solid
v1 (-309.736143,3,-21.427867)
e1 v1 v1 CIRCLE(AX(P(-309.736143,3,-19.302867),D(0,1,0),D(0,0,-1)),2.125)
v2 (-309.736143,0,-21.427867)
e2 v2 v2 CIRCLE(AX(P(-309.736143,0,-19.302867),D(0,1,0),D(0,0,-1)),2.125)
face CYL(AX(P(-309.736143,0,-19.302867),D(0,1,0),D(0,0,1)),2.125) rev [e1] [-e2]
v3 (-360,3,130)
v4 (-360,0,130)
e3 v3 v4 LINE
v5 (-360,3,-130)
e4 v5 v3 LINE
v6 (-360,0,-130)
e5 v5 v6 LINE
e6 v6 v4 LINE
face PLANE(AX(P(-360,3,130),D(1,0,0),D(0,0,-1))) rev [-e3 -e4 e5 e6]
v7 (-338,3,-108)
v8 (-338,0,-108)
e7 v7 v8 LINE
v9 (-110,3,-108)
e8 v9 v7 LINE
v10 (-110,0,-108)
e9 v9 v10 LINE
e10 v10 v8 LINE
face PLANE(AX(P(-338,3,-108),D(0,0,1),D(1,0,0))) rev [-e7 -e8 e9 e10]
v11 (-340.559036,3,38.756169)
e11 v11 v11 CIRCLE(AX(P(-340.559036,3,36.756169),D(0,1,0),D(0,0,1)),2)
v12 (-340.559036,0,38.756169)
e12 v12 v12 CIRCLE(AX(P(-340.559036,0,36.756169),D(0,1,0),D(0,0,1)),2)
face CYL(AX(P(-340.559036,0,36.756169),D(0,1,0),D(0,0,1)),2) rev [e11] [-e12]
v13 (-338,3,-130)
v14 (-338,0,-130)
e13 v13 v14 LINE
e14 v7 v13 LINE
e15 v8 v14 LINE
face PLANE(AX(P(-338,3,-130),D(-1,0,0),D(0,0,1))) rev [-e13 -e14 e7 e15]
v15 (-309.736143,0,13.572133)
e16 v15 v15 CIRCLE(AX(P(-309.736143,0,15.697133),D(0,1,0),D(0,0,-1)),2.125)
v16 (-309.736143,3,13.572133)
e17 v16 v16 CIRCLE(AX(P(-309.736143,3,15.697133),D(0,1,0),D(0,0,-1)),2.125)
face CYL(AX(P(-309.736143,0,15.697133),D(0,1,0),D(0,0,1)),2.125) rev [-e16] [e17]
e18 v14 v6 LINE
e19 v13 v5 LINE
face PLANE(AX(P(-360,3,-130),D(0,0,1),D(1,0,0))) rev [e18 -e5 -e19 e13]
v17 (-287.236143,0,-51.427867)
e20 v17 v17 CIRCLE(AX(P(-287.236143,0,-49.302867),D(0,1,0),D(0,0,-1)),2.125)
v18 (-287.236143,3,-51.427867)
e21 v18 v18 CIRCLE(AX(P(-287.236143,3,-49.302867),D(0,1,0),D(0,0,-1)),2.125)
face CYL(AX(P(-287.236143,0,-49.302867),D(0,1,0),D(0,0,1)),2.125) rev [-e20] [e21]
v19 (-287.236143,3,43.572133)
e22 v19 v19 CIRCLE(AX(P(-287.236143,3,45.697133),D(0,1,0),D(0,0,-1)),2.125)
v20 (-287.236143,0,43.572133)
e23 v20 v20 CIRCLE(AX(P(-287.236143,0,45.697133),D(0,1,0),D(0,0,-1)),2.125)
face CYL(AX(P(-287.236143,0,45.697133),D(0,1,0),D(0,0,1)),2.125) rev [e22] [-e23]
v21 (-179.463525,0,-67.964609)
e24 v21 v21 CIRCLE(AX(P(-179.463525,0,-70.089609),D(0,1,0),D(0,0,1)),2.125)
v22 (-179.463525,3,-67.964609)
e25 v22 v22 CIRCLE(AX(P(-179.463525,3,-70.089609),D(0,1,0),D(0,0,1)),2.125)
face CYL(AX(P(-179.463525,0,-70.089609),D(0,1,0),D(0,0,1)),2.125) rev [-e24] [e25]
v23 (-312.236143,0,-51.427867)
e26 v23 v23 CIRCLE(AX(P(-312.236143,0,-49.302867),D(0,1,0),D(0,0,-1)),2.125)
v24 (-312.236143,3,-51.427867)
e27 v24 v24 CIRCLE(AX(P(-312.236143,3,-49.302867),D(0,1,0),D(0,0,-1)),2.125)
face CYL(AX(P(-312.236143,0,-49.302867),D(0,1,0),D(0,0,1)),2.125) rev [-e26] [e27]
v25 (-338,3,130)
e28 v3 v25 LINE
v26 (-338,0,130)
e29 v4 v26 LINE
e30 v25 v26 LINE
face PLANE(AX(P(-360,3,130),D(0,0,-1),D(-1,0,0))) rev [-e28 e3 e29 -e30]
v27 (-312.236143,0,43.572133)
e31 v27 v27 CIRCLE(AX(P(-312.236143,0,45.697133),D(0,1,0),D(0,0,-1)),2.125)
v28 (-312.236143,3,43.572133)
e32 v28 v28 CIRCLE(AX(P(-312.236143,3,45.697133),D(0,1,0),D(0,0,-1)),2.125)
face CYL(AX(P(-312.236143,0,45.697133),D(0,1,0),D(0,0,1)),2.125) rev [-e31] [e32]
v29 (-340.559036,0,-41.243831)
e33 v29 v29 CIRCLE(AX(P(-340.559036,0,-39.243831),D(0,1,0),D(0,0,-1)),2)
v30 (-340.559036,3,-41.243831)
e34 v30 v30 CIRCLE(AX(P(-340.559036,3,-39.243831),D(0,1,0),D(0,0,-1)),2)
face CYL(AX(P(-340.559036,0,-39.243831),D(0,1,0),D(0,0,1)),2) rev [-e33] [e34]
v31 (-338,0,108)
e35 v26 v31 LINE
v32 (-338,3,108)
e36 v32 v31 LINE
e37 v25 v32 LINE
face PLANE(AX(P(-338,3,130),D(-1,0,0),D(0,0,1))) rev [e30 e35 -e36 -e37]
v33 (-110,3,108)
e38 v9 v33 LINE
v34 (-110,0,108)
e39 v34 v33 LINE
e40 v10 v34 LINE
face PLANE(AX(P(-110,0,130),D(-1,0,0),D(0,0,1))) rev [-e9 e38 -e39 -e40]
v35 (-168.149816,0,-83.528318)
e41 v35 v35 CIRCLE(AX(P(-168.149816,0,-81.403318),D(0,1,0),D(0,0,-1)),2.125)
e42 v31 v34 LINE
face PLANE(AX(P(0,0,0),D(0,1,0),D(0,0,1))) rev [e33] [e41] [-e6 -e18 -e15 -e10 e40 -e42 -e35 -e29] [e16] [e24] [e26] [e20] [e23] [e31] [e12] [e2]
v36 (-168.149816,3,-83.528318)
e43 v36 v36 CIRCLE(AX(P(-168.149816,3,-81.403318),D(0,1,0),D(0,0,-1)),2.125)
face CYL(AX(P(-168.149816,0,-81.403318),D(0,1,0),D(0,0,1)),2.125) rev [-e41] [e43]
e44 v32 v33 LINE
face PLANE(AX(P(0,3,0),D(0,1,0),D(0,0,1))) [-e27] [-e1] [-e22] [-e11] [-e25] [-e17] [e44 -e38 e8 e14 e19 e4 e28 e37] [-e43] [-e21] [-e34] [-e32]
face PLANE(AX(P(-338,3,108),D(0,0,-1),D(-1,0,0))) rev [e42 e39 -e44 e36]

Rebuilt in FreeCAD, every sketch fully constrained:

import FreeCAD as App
import Part
import Sketcher
from FreeCAD import Vector

doc = App.newDocument("Part")
body = doc.addObject("PartDesign::Body", "Body")

sketch1 = body.newObject("Sketcher::SketchObject", "Sketch")
sketch1.AttachmentSupport = (doc.getObject("XZ_Plane"), [""])
sketch1.MapMode = "FlatFace"
sketch1.addGeometry([
    Part.LineSegment(Vector(-360, -130, 0), Vector(-360, 130, 0)),
    Part.LineSegment(Vector(-360, 130, 0), Vector(-338, 130, 0)),
    Part.LineSegment(Vector(-338, 130, 0), Vector(-338, 108, 0)),
    Part.LineSegment(Vector(-338, 108, 0), Vector(338, 108, 0)),
    Part.LineSegment(Vector(338, 108, 0), Vector(338, 130, 0)),
    Part.LineSegment(Vector(338, 130, 0), Vector(360, 130, 0)),
    Part.LineSegment(Vector(360, 130, 0), Vector(360, -130, 0)),
    Part.LineSegment(Vector(360, -130, 0), Vector(338, -130, 0)),
    Part.LineSegment(Vector(338, -130, 0), Vector(338, -108, 0)),
    Part.LineSegment(Vector(338, -108, 0), Vector(-338, -108, 0)),
    Part.LineSegment(Vector(-338, -108, 0), Vector(-338, -130, 0)),
    Part.LineSegment(Vector(-338, -130, 0), Vector(-360, -130, 0)),
], False)
sketch1.addConstraint([
    Sketcher.Constraint("Coincident", 0, 2, 1, 1),
    Sketcher.Constraint("Coincident", 1, 2, 2, 1),
    Sketcher.Constraint("Coincident", 2, 2, 3, 1),
    Sketcher.Constraint("Coincident", 3, 2, 4, 1),
    Sketcher.Constraint("Coincident", 4, 2, 5, 1),
    Sketcher.Constraint("Coincident", 5, 2, 6, 1),
    Sketcher.Constraint("Coincident", 6, 2, 7, 1),
    Sketcher.Constraint("Coincident", 7, 2, 8, 1),
    Sketcher.Constraint("Coincident", 8, 2, 9, 1),
    Sketcher.Constraint("Coincident", 9, 2, 10, 1),
    Sketcher.Constraint("Coincident", 10, 2, 11, 1),
    Sketcher.Constraint("Coincident", 11, 2, 0, 1),
    Sketcher.Constraint("Vertical", 0),
    Sketcher.Constraint("Horizontal", 1),
    Sketcher.Constraint("Vertical", 2),
    Sketcher.Constraint("Horizontal", 3),
    Sketcher.Constraint("Vertical", 4),
    Sketcher.Constraint("Horizontal", 5),
    Sketcher.Constraint("Vertical", 6),
    Sketcher.Constraint("Horizontal", 7),
    Sketcher.Constraint("Vertical", 8),
    Sketcher.Constraint("Horizontal", 9),
    Sketcher.Constraint("Vertical", 10),
    Sketcher.Constraint("Horizontal", 11),
    Sketcher.Constraint("Symmetric", 0, 2, 6, 2, -1, 1),
    Sketcher.Constraint("Symmetric", 2, 2, 8, 2, -1, 1),
    Sketcher.Constraint("Symmetric", 4, 2, 10, 2, -1, 1),
    Sketcher.Constraint("Symmetric", 1, 2, 4, 2, -2),
    Sketcher.Constraint("Equal", 11, 2),
    Sketcher.Constraint("DistanceX", 1, 1, 1, 2, 22.0),
    Sketcher.Constraint("DistanceX", 3, 1, 3, 2, 676.0),
    Sketcher.Constraint("DistanceY", 0, 1, 0, 2, 260.0),
])
pad1 = body.newObject("PartDesign::Pad", "Pad")
pad1.Profile = sketch1
pad1.Length = 3
pad1.Reversed = True

sketch2 = body.newObject("Sketcher::SketchObject", "Sketch001")
sketch2.AttachmentSupport = (doc.getObject("XZ_Plane"), [""])
sketch2.MapMode = "FlatFace"
sketch2.AttachmentOffset = App.Placement(Vector(0, 0, -3), App.Rotation())
sketch2.addGeometry([
    Part.Circle(Vector(307.8, -49.3, 0), Vector(0, 0, 1), 2.1),
    Part.Circle(Vector(282.8, -49.3, 0), Vector(0, 0, 1), 2.1),
    Part.Circle(Vector(305.3, -19.3, 0), Vector(0, 0, 1), 2.1),
    Part.Circle(Vector(305.3, 15.7, 0), Vector(0, 0, 1), 2.1),
    Part.Circle(Vector(307.8, 45.7, 0), Vector(0, 0, 1), 2.1),
    Part.Circle(Vector(282.8, 45.7, 0), Vector(0, 0, 1), 2.1),
    Part.Circle(Vector(-287.2, 45.7, 0), Vector(0, 0, 1), 2.1),
    Part.Circle(Vector(-312.2, 45.7, 0), Vector(0, 0, 1), 2.1),
    Part.Circle(Vector(-309.7, 15.7, 0), Vector(0, 0, 1), 2.1),
    Part.Circle(Vector(-309.7, -19.3, 0), Vector(0, 0, 1), 2.1),
    Part.Circle(Vector(-287.2, -49.3, 0), Vector(0, 0, 1), 2.1),
    Part.Circle(Vector(-312.2, -49.3, 0), Vector(0, 0, 1), 2.1),
], False)
sketch2.addConstraint([
    Sketcher.Constraint("Equal", 0, 1),
    Sketcher.Constraint("Equal", 1, 2),
    Sketcher.Constraint("Equal", 2, 3),
    Sketcher.Constraint("Equal", 3, 4),
    Sketcher.Constraint("Equal", 4, 5),
    Sketcher.Constraint("Equal", 5, 6),
    Sketcher.Constraint("Equal", 6, 7),
    Sketcher.Constraint("Equal", 7, 8),
    Sketcher.Constraint("Equal", 8, 9),
    Sketcher.Constraint("Equal", 9, 10),
    Sketcher.Constraint("Equal", 10, 11),
    Sketcher.Constraint("Horizontal", 0, 3, 1, 3),
    Sketcher.Constraint("Horizontal", 4, 3, 5, 3),
    Sketcher.Constraint("Horizontal", 5, 3, 6, 3),
    Sketcher.Constraint("Horizontal", 6, 3, 7, 3),
    Sketcher.Constraint("Horizontal", 3, 3, 8, 3),
    Sketcher.Constraint("Horizontal", 2, 3, 9, 3),
    Sketcher.Constraint("Horizontal", 1, 3, 10, 3),
    Sketcher.Constraint("Horizontal", 10, 3, 11, 3),
    Sketcher.Constraint("Vertical", 2, 3, 3, 3),
    Sketcher.Constraint("Vertical", 0, 3, 4, 3),
    Sketcher.Constraint("Vertical", 1, 3, 5, 3),
    Sketcher.Constraint("Vertical", 8, 3, 9, 3),
    Sketcher.Constraint("Vertical", 6, 3, 10, 3),
    Sketcher.Constraint("Vertical", 7, 3, 11, 3),
    Sketcher.Constraint("Diameter", 0, 4.25),
    Sketcher.Constraint("DistanceX", 1, 3, 0, 3, 25.0),
    Sketcher.Constraint("DistanceY", 0, 3, 2, 3, 30.0),
    Sketcher.Constraint("DistanceY", 2, 3, 3, 3, 35.0),
    Sketcher.Constraint("DistanceY", 3, 3, 4, 3, 30.0),
    Sketcher.Constraint("DistanceX", 6, 3, 5, 3, 570.0),
    Sketcher.Constraint("DistanceX", 7, 3, 6, 3, 25.0),
    Sketcher.Constraint("DistanceX", 8, 3, 3, 3, 615.0),
    Sketcher.Constraint("DistanceX", 2, 3, 0, 3, 2.5),
    Sketcher.Constraint("DistanceX", -1, 1, 0, 3, 307.763857),
    Sketcher.Constraint("DistanceY", 0, 3, -1, 1, 49.302867),
])
pocket1 = body.newObject("PartDesign::Pocket", "Pocket")
pocket1.Profile = sketch2
pocket1.Length = 3
pocket1.Reversed = True

sketch3 = body.newObject("Sketcher::SketchObject", "Sketch002")
sketch3.AttachmentSupport = (doc.getObject("XZ_Plane"), [""])
sketch3.MapMode = "FlatFace"
sketch3.AttachmentOffset = App.Placement(Vector(0, 0, -3), App.Rotation())
sketch3.addGeometry([
    Part.Circle(Vector(339.4, -39.2, 0), Vector(0, 0, 1), 2),
    Part.Circle(Vector(339.4, 36.8, 0), Vector(0, 0, 1), 2),
    Part.Circle(Vector(-340.6, 36.8, 0), Vector(0, 0, 1), 2),
    Part.Circle(Vector(-340.6, -39.2, 0), Vector(0, 0, 1), 2),
], False)
sketch3.addConstraint([
    Sketcher.Constraint("Equal", 0, 1),
    Sketcher.Constraint("Equal", 1, 2),
    Sketcher.Constraint("Equal", 2, 3),
    Sketcher.Constraint("Horizontal", 1, 3, 2, 3),
    Sketcher.Constraint("Horizontal", 0, 3, 3, 3),
    Sketcher.Constraint("Vertical", 0, 3, 1, 3),
    Sketcher.Constraint("Vertical", 2, 3, 3, 3),
    Sketcher.Constraint("Diameter", 0, 4.0),
    Sketcher.Constraint("DistanceY", 0, 3, 1, 3, 76.0),
    Sketcher.Constraint("DistanceX", 2, 3, 1, 3, 680.0),
    Sketcher.Constraint("DistanceY", 0, 3, -1, 1, 39.243831),
    Sketcher.Constraint("DistanceX", -1, 1, 0, 3, 339.440964),
])
pocket2 = body.newObject("PartDesign::Pocket", "Pocket001")
pocket2.Profile = sketch3
pocket2.Length = 3
pocket2.Reversed = True

sketch4 = body.newObject("Sketcher::SketchObject", "Sketch003")
sketch4.AttachmentSupport = (doc.getObject("XZ_Plane"), [""])
sketch4.MapMode = "FlatFace"
sketch4.AttachmentOffset = App.Placement(Vector(0, 0, -3), App.Rotation())
sketch4.addGeometry([
    Part.Circle(Vector(66.6, 176, 0), Vector(0, 0, 1), 2.1),
    Part.Circle(Vector(-179.5, -70.1, 0), Vector(0, 0, 1), 2.1),
    Part.Circle(Vector(-15.4, 94, 0), Vector(0, 0, 1), 2.1),
    Part.Circle(Vector(-97.4, 11.9, 0), Vector(0, 0, 1), 2.1),
    Part.Circle(Vector(77.9, 164.7, 0), Vector(0, 0, 1), 2.1),
    Part.Circle(Vector(-4.1, 82.6, 0), Vector(0, 0, 1), 2.1),
    Part.Circle(Vector(-86.1, 0.6, 0), Vector(0, 0, 1), 2.1),
    Part.Circle(Vector(-168.1, -81.4, 0), Vector(0, 0, 1), 2.1),
    Part.Circle(Vector(-49.4, -200.2, 0), Vector(0, 0, 1), 2.1),
    Part.Circle(Vector(32.7, -118.2, 0), Vector(0, 0, 1), 2.1),
    Part.Circle(Vector(114.7, -36.1, 0), Vector(0, 0, 1), 2.1),
    Part.Circle(Vector(196.7, 45.9, 0), Vector(0, 0, 1), 2.1),
    Part.Circle(Vector(44, -129.5, 0), Vector(0, 0, 1), 2.1),
    Part.Circle(Vector(126, -47.5, 0), Vector(0, 0, 1), 2.1),
    Part.Circle(Vector(-38, -211.5, 0), Vector(0, 0, 1), 2.1),
    Part.Circle(Vector(208, 34.6, 0), Vector(0, 0, 1), 2.1),
], False)
sketch4.addConstraint([
    Sketcher.Constraint("Equal", 0, 1),
    Sketcher.Constraint("Equal", 1, 2),
    Sketcher.Constraint("Equal", 2, 3),
    Sketcher.Constraint("Equal", 3, 4),
    Sketcher.Constraint("Equal", 4, 5),
    Sketcher.Constraint("Equal", 5, 6),
    Sketcher.Constraint("Equal", 6, 7),
    Sketcher.Constraint("Equal", 7, 8),
    Sketcher.Constraint("Equal", 8, 9),
    Sketcher.Constraint("Equal", 9, 10),
    Sketcher.Constraint("Equal", 10, 11),
    Sketcher.Constraint("Equal", 11, 12),
    Sketcher.Constraint("Equal", 12, 13),
    Sketcher.Constraint("Equal", 13, 14),
    Sketcher.Constraint("Equal", 14, 15),
    Sketcher.Constraint("Diameter", 0, 4.25),
    Sketcher.Constraint("DistanceY", -1, 1, 0, 3, 175.98355),
    Sketcher.Constraint("DistanceY", 1, 3, -1, 1, 70.089609),
    Sketcher.Constraint("DistanceX", 2, 3, -1, 1, 15.414751),
    Sketcher.Constraint("DistanceY", -1, 1, 4, 3, 164.669842),
    Sketcher.Constraint("DistanceX", 6, 3, -1, 1, 86.125429),
    Sketcher.Constraint("DistanceY", -1, 1, 6, 3, 0.621069),
    Sketcher.Constraint("DistanceX", -1, 1, 9, 3, 32.66851),
    Sketcher.Constraint("DistanceY", 9, 3, -1, 1, 118.172871),
    Sketcher.Constraint("DistanceX", -1, 1, 12, 3, 43.982218),
    Sketcher.Constraint("DistanceY", 12, 3, -1, 1, 129.486579),
    Sketcher.Constraint("DistanceX", 14, 3, -1, 1, 38.042168),
    Sketcher.Constraint("DistanceX", -1, 1, 15, 3, 208.030992),
    Sketcher.Constraint("DistanceX", 1, 3, 0, 3, 246.07316),
    Sketcher.Constraint("DistanceX", 0, 3, 4, 3, 11.313708),
    Sketcher.Constraint("DistanceY", 2, 3, 4, 3, 70.710678),
    Sketcher.Constraint("DistanceX", 3, 3, 4, 3, 175.362482),
    Sketcher.Constraint("DistanceX", 2, 3, 5, 3, 11.313708),
    Sketcher.Constraint("DistanceY", 5, 3, 2, 3, 11.313708),
    Sketcher.Constraint("DistanceX", 5, 3, 0, 3, 70.710678),
    Sketcher.Constraint("DistanceY", 3, 3, 5, 3, 70.710678),
    Sketcher.Constraint("DistanceX", 1, 3, 7, 3, 11.313708),
    Sketcher.Constraint("DistanceY", 7, 3, 1, 3, 11.313708),
    Sketcher.Constraint("DistanceX", 7, 3, 8, 3, 118.793939),
    Sketcher.Constraint("DistanceY", 8, 3, 7, 3, 118.793939),
    Sketcher.Constraint("DistanceX", 5, 3, 10, 3, 118.793939),
    Sketcher.Constraint("DistanceY", 10, 3, 5, 3, 118.793939),
    Sketcher.Constraint("DistanceX", 4, 3, 11, 3, 118.793939),
    Sketcher.Constraint("DistanceY", 11, 3, 4, 3, 118.793939),
    Sketcher.Constraint("DistanceX", 10, 3, 13, 3, 11.313708),
    Sketcher.Constraint("DistanceY", 13, 3, 10, 3, 11.313708),
    Sketcher.Constraint("DistanceY", 14, 3, 8, 3, 11.313708),
    Sketcher.Constraint("DistanceY", 15, 3, 11, 3, 11.313708),
])
pocket3 = body.newObject("PartDesign::Pocket", "Pocket002")
pocket3.Profile = sketch4
pocket3.Length = 3
pocket3.Reversed = True

sketch5 = body.newObject("Sketcher::SketchObject", "Sketch004")
sketch5.AttachmentSupport = (doc.getObject("XZ_Plane"), [""])
sketch5.MapMode = "FlatFace"
sketch5.AttachmentOffset = App.Placement(Vector(0, 0, -3), App.Rotation())
sketch5.addGeometry([
    Part.LineSegment(Vector(-110, -130, 0), Vector(-110, 130, 0)),
    Part.LineSegment(Vector(-110, 130, 0), Vector(360, 130, 0)),
    Part.LineSegment(Vector(360, 130, 0), Vector(360, -130, 0)),
    Part.LineSegment(Vector(360, -130, 0), Vector(-110, -130, 0)),
], False)
sketch5.addConstraint([
    Sketcher.Constraint("Coincident", 0, 2, 1, 1),
    Sketcher.Constraint("Coincident", 1, 2, 2, 1),
    Sketcher.Constraint("Coincident", 2, 2, 3, 1),
    Sketcher.Constraint("Coincident", 3, 2, 0, 1),
    Sketcher.Constraint("Vertical", 0),
    Sketcher.Constraint("Horizontal", 1),
    Sketcher.Constraint("Vertical", 2),
    Sketcher.Constraint("Horizontal", 3),
    Sketcher.Constraint("DistanceX", 1, 1, 1, 2, 470.0),
    Sketcher.Constraint("DistanceY", 0, 1, 0, 2, 260.0),
    Sketcher.Constraint("DistanceX", 0, 2, -1, 1, 110.0),
    Sketcher.Constraint("DistanceY", -1, 1, 0, 2, 130.0),
])
pocket4 = body.newObject("PartDesign::Pocket", "Pocket003")
pocket4.Profile = sketch5
pocket4.Length = 3
pocket4.Reversed = True

doc.recompute()
